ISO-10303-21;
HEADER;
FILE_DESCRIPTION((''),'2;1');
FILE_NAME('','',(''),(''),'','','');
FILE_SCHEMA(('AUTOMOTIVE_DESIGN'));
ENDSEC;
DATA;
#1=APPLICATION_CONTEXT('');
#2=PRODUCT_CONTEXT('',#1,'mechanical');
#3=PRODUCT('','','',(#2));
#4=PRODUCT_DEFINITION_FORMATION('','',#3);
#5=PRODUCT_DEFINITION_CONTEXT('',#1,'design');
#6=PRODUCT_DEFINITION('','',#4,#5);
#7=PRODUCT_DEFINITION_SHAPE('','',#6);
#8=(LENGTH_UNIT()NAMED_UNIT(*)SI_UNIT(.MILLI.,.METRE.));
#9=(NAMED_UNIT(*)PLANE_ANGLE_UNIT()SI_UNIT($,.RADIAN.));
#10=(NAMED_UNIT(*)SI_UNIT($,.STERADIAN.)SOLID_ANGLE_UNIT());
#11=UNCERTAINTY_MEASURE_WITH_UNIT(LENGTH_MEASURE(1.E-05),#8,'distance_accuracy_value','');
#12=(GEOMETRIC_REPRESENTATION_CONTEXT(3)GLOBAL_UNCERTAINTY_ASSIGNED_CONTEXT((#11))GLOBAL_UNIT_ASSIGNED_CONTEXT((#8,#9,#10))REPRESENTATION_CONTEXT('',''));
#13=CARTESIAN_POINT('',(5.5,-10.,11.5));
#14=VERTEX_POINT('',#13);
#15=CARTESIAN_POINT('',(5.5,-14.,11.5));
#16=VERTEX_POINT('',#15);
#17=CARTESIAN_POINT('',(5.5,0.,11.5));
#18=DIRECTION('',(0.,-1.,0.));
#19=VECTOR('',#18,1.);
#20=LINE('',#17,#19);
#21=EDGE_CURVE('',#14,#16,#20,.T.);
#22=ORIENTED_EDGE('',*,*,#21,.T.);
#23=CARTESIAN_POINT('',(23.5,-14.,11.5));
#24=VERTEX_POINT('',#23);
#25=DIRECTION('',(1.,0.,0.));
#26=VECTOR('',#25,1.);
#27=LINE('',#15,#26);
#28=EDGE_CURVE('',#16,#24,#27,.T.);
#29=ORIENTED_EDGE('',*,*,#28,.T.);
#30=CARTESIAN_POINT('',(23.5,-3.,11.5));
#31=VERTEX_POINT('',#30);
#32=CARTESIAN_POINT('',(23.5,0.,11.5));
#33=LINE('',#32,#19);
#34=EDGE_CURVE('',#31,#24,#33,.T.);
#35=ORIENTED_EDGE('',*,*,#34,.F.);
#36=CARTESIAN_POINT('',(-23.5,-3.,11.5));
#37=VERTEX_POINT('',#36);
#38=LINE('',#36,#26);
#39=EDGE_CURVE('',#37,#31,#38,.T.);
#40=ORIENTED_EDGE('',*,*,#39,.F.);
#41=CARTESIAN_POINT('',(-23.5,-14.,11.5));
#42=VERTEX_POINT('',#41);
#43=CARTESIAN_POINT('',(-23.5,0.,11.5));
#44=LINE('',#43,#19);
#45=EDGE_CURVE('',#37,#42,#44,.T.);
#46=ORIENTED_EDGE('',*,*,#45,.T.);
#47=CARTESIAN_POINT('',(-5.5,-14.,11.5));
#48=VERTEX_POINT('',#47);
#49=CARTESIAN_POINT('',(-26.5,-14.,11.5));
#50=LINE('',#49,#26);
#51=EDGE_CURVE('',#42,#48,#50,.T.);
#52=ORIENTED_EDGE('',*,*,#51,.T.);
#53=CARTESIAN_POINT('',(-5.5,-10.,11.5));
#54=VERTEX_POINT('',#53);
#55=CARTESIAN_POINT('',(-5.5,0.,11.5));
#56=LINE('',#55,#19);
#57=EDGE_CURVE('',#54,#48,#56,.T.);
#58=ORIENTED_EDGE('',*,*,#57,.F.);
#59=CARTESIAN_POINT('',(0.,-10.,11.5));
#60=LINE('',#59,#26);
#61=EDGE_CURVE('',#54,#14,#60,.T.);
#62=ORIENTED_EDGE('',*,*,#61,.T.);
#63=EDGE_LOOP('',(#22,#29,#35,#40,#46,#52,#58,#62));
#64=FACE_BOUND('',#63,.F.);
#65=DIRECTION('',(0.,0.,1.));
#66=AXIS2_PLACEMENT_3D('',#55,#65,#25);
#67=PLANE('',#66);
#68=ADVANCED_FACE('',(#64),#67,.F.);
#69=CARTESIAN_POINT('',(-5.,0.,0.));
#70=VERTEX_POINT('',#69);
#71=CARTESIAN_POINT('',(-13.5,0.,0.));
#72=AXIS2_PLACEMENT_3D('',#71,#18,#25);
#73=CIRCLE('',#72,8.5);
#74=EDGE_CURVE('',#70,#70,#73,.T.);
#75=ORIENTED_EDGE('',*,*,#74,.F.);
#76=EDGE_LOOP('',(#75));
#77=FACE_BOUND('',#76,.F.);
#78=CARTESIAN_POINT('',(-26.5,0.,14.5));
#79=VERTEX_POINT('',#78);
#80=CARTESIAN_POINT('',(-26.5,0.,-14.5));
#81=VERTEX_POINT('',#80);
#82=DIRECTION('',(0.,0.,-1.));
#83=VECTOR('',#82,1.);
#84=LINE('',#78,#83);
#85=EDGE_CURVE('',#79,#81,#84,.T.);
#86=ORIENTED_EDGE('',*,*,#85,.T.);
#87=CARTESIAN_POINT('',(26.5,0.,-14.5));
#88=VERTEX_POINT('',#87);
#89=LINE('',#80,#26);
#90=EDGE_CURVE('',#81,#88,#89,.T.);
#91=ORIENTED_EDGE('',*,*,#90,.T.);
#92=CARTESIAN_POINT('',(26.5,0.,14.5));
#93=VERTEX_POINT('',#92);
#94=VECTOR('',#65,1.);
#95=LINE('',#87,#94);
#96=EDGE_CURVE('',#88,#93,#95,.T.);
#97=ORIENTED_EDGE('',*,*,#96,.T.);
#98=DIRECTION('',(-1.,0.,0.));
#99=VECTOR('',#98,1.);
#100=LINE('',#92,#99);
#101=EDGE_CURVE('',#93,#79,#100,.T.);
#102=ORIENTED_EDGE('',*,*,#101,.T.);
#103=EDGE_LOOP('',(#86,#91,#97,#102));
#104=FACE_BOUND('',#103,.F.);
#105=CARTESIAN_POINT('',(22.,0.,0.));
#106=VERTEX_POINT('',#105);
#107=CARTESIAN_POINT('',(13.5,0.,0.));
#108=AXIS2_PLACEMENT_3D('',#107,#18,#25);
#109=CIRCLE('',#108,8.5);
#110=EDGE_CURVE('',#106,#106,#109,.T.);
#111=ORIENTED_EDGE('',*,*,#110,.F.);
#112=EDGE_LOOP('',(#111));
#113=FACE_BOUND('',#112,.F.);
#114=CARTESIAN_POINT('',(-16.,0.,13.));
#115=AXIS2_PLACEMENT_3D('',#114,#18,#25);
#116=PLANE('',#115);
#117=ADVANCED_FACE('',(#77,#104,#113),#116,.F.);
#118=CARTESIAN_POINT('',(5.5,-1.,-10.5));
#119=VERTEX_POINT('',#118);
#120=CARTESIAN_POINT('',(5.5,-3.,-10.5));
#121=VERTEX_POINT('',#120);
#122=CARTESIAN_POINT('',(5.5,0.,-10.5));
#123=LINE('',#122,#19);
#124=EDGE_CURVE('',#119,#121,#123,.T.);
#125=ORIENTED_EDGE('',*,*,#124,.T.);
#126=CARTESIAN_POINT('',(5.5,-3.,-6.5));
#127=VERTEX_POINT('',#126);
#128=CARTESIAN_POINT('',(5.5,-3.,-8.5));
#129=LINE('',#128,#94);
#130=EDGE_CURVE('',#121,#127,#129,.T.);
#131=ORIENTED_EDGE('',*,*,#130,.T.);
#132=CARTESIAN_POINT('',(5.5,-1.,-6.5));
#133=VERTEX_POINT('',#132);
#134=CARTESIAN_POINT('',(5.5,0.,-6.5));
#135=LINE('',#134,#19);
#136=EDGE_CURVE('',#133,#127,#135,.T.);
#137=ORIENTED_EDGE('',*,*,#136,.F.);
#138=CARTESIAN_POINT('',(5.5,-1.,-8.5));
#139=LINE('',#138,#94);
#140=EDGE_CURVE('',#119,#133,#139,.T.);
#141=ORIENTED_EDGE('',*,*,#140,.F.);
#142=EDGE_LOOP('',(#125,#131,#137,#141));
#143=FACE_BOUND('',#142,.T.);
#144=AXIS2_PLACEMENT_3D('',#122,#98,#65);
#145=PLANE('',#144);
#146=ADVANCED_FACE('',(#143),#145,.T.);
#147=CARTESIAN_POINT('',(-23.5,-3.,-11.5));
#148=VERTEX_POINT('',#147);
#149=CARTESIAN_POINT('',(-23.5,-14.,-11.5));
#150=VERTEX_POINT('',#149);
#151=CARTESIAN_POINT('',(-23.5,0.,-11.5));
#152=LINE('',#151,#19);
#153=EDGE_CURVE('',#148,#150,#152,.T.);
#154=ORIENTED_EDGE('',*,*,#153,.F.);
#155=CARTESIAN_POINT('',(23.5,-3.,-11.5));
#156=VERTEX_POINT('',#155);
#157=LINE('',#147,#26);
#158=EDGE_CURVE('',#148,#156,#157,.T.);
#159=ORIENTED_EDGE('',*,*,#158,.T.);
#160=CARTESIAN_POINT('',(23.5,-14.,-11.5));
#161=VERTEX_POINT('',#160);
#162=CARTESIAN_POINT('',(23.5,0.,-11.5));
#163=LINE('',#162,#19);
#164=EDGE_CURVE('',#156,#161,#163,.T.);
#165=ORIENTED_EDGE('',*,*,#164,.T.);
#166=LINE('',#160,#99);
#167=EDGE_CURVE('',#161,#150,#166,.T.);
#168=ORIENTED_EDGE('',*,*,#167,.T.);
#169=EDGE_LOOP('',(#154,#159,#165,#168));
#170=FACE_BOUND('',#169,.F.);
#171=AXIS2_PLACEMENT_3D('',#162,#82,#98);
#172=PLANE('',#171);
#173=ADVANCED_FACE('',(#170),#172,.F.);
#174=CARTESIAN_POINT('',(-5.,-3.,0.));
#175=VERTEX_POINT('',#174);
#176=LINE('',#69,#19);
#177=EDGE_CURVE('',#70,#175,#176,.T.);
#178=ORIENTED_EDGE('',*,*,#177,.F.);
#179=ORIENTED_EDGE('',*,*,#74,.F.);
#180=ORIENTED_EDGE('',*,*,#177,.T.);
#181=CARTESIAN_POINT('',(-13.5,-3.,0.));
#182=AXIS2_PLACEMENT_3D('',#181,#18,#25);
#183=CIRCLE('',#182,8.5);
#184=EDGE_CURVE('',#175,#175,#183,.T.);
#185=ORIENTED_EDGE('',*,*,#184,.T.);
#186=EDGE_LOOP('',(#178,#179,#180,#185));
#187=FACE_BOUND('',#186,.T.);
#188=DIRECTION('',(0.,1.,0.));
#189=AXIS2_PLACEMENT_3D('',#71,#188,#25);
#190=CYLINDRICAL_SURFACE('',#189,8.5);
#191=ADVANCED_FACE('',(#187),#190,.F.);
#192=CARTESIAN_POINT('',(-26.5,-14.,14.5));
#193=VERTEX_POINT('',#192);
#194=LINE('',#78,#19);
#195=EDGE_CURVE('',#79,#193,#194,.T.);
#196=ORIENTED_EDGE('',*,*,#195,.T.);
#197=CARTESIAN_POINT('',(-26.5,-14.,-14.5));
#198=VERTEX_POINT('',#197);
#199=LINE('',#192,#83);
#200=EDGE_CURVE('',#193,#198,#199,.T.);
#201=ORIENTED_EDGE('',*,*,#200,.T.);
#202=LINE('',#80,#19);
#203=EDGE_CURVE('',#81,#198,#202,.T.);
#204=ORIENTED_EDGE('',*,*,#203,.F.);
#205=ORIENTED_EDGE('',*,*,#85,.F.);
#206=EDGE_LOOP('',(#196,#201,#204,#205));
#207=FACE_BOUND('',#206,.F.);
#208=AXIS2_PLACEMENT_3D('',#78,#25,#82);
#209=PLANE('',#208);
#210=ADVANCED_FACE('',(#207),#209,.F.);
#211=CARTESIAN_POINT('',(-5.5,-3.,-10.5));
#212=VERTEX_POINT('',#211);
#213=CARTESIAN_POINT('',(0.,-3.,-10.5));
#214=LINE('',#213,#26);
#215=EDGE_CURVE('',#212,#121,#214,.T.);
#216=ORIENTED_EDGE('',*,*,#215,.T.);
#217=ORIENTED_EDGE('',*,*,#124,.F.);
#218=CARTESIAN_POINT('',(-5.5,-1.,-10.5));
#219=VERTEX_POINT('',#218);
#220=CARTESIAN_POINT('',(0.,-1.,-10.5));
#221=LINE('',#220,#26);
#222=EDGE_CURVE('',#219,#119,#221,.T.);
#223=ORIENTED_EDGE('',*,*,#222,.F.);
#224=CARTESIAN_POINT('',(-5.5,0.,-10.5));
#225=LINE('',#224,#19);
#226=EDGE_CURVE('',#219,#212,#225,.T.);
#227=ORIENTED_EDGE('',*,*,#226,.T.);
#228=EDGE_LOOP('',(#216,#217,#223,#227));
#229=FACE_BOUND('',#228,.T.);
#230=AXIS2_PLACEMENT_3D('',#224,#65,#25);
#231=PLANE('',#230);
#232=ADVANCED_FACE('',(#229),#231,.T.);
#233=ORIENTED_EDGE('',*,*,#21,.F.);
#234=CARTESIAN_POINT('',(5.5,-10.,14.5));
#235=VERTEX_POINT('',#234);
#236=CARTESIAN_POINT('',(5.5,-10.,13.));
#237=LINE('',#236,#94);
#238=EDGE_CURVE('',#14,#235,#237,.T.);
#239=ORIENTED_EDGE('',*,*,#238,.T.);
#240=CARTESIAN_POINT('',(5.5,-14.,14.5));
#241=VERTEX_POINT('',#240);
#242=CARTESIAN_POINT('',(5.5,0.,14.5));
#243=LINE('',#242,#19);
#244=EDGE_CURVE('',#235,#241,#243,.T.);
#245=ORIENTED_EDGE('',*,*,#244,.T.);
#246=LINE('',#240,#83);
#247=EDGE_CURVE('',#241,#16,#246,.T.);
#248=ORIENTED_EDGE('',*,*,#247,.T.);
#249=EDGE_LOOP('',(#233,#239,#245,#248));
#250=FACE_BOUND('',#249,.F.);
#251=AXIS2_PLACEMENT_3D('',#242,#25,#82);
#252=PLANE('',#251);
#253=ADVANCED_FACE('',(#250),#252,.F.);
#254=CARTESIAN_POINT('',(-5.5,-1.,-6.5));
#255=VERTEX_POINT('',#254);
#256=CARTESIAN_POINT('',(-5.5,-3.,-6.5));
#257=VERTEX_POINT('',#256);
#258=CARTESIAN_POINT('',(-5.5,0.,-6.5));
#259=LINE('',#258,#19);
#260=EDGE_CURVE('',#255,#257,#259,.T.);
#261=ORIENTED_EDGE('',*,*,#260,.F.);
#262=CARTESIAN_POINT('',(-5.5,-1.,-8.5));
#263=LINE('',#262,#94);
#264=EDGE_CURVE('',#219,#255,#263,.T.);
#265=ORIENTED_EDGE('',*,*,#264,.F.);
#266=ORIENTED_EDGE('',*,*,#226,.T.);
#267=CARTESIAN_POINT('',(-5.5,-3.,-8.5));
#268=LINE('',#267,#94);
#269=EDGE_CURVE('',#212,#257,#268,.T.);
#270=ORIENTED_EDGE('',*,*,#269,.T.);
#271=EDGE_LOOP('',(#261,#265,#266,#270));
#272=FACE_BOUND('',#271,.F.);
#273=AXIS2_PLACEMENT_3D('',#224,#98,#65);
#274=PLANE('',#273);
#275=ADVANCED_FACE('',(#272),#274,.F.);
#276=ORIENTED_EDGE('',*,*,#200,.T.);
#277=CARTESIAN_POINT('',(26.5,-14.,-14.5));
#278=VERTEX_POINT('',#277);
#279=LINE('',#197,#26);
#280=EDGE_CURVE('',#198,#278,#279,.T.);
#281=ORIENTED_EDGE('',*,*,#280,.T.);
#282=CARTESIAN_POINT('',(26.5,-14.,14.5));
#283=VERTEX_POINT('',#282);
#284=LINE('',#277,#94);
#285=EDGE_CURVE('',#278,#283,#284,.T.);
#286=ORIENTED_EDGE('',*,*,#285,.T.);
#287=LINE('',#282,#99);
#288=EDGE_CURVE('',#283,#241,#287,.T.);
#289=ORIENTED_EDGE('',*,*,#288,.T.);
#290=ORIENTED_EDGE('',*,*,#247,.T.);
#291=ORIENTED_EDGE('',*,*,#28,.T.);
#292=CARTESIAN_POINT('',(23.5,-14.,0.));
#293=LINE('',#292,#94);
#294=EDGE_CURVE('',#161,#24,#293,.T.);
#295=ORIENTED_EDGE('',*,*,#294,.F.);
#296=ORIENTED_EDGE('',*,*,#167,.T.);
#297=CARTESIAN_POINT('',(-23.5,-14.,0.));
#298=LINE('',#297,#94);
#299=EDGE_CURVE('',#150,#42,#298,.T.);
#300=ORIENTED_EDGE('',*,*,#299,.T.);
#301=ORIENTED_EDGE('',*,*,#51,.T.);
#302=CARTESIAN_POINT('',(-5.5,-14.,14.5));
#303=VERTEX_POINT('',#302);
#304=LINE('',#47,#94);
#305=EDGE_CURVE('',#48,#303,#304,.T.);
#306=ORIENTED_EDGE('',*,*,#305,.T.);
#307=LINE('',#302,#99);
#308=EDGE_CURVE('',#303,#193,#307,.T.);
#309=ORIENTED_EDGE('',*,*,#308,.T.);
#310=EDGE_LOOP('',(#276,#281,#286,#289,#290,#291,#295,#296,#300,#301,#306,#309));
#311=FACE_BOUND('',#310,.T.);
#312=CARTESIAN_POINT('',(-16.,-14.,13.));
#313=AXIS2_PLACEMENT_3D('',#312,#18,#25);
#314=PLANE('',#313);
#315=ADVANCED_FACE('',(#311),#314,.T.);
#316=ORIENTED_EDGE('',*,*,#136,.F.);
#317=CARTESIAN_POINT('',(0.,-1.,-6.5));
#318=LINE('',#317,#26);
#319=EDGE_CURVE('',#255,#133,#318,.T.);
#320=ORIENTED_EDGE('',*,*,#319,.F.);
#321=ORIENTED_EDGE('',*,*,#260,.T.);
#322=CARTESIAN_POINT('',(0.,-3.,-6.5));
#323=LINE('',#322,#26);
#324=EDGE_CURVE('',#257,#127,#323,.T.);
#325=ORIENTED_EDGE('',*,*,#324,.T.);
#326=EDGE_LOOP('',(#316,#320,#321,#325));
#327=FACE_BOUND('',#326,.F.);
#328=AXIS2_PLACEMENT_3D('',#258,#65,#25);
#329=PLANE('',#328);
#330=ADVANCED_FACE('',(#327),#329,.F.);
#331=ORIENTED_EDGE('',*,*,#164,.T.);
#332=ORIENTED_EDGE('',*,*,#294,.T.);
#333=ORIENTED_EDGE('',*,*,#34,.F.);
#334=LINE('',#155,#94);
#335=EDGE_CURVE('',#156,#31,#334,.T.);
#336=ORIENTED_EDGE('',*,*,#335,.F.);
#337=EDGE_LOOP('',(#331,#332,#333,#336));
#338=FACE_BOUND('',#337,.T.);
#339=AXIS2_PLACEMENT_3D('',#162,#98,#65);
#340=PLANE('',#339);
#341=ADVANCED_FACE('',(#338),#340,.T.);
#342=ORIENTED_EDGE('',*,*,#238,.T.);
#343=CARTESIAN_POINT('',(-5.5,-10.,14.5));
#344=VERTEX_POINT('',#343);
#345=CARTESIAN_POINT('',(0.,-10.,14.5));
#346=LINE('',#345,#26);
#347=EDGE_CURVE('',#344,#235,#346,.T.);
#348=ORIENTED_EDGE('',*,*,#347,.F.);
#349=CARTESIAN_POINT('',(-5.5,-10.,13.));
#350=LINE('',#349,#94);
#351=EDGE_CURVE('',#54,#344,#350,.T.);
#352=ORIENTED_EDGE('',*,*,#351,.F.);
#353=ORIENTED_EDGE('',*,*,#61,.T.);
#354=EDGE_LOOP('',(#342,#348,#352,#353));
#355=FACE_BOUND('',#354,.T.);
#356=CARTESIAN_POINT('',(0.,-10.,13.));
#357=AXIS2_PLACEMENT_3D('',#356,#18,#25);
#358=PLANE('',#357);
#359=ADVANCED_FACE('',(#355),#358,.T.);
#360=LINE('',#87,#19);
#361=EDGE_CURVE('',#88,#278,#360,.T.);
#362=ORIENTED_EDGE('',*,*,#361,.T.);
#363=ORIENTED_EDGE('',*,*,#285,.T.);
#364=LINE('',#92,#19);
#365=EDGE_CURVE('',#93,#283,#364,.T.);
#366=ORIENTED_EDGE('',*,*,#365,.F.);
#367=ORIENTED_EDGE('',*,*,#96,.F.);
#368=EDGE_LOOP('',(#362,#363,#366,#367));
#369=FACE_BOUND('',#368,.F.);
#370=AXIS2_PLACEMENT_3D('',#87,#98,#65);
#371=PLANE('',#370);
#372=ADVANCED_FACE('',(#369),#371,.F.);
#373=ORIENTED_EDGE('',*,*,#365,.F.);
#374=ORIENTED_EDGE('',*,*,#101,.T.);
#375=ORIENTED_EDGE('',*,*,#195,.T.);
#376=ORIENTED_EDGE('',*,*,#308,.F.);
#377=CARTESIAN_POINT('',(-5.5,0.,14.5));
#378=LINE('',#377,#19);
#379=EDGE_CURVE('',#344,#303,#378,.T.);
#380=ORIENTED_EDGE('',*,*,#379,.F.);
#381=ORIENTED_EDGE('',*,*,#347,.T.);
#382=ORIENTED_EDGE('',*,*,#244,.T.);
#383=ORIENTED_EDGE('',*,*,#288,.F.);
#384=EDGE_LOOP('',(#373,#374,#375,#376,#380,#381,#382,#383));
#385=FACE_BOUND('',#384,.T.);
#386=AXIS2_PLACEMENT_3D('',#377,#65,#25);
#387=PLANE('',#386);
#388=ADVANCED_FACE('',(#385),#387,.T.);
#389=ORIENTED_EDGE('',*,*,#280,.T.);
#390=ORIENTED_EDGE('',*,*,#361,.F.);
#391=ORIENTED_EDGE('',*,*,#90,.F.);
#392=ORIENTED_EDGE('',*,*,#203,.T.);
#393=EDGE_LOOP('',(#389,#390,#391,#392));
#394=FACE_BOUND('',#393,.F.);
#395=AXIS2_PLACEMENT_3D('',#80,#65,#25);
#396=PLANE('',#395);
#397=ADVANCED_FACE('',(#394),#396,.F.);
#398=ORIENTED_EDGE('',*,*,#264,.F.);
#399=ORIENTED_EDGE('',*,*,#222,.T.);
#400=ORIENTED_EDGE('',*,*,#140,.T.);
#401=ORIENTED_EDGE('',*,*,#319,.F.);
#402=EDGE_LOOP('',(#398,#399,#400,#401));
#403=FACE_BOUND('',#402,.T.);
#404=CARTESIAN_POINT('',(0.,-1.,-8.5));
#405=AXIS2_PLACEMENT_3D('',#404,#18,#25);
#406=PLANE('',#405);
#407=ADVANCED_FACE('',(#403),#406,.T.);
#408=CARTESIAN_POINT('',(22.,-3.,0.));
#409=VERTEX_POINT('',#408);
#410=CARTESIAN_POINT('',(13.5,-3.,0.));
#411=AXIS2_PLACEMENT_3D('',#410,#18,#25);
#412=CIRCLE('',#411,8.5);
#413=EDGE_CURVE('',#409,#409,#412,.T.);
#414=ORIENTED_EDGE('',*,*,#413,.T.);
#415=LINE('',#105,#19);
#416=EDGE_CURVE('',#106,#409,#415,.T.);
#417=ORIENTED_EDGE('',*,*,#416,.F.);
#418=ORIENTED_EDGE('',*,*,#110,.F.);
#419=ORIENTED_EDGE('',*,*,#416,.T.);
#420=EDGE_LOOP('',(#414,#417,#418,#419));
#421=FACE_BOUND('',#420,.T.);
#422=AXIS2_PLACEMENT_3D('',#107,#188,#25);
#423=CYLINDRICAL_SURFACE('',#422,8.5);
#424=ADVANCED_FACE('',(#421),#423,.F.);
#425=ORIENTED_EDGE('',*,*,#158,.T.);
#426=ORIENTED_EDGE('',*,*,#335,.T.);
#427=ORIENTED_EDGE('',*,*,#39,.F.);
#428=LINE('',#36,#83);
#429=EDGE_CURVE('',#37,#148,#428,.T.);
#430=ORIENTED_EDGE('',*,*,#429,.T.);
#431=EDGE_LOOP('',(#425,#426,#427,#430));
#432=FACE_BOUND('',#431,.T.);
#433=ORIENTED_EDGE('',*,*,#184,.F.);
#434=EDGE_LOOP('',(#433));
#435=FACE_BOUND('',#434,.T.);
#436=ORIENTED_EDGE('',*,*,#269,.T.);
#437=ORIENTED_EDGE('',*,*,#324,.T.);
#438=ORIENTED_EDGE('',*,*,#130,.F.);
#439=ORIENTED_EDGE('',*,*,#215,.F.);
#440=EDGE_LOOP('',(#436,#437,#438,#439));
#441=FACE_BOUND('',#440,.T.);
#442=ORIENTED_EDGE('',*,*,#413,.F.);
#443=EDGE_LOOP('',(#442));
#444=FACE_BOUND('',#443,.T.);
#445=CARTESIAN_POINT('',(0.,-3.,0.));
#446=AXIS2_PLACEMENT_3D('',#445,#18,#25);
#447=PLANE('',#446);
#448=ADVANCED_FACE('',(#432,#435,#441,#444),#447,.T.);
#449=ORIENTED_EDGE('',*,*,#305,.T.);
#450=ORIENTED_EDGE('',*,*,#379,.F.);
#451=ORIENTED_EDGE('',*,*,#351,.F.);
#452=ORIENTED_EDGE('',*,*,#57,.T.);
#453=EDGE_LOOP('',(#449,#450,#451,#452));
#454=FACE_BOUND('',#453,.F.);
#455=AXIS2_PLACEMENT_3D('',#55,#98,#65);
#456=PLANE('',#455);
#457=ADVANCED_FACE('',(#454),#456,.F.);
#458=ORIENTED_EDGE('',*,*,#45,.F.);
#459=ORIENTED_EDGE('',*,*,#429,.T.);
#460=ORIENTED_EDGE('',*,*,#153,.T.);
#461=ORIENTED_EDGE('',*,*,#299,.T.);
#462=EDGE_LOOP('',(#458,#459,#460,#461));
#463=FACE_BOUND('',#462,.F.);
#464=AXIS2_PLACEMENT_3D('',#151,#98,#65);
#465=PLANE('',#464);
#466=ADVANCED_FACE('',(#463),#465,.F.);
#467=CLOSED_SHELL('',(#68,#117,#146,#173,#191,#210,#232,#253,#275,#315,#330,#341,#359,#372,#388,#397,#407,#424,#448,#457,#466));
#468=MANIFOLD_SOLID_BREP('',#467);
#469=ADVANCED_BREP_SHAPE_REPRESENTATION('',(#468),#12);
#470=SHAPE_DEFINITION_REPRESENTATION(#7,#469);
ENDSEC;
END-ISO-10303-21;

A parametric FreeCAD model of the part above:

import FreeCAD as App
import Part
import Sketcher

V = App.Vector


def add_polygon(sketch, points):
    """Adds a closed chain of lines whose ends are joined by coincident constraints."""
    first, n = sketch.GeometryCount, len(points)
    for a, b in zip(points, points[1:] + points[:1]):
        sketch.addGeometry(Part.LineSegment(App.Vector(*a, 0), App.Vector(*b, 0)), False)
    for i in range(n):
        sketch.addConstraint(Sketcher.Constraint("Coincident", first + i, 2, first + (i + 1) % n, 1))

doc = App.newDocument("Part")
body = doc.addObject("PartDesign::Body", "Body")

sketch1 = body.newObject("Sketcher::SketchObject", "Sketch")
sketch1.AttachmentSupport = (doc.getObject("XZ_Plane"), [""])
sketch1.MapMode = "FlatFace"
add_polygon(sketch1, [(-23.5, 11.5), (-23.5, -11.5), (23.5, -11.5), (23.5, 11.5)])
add_polygon(sketch1, [(5.5, -10.5), (-5.5, -10.5), (-5.5, -6.5), (5.5, -6.5)])
sketch1.addGeometry(Part.Circle(V(-13.5, 0, 0), V(0, 0, 1), 8.5), False)
sketch1.addGeometry(Part.Circle(V(13.5, 0, 0), V(0, 0, 1), 8.5), False)
sketch1.addConstraint([
    Sketcher.Constraint("Vertical", 0),
    Sketcher.Constraint("Horizontal", 1),
    Sketcher.Constraint("Vertical", 2),
    Sketcher.Constraint("Horizontal", 3),
    Sketcher.Constraint("Horizontal", 4),
    Sketcher.Constraint("Vertical", 5),
    Sketcher.Constraint("Horizontal", 6),
    Sketcher.Constraint("Vertical", 7),
    Sketcher.Constraint("Equal", 8, 9),
    Sketcher.Constraint("Symmetric", 8, 3, 9, 3, -1, 1),
    Sketcher.Constraint("Symmetric", 0, 2, 2, 2, -1, 1),
    Sketcher.Constraint("PointOnObject", 8, 3, -1),
    Sketcher.Constraint("Diameter", 8, 17.0),
    Sketcher.Constraint("DistanceX", 1, 1, 1, 2, 47.0),
    Sketcher.Constraint("DistanceX", 4, 2, 4, 1, 11.0),
    Sketcher.Constraint("DistanceY", 0, 2, 0, 1, 23.0),
    Sketcher.Constraint("DistanceY", 5, 1, 5, 2, 4.0),
    Sketcher.Constraint("DistanceX", 8, 3, 9, 3, 27.0),
    Sketcher.Constraint("DistanceX", 8, 3, 4, 2, 8.0),
    Sketcher.Constraint("DistanceY", 0, 2, 4, 2, 1.0),
])
pad1 = body.newObject("PartDesign::Pad", "Pad")
pad1.Profile = sketch1
pad1.Length = 3

sketch2 = body.newObject("Sketcher::SketchObject", "Sketch001")
sketch2.AttachmentSupport = (doc.getObject("XZ_Plane"), [""])
sketch2.MapMode = "FlatFace"
add_polygon(sketch2, [(-5.5, -6.5), (-5.5, -10.5), (5.5, -10.5), (5.5, -6.5)])
sketch2.addConstraint([
    Sketcher.Constraint("Vertical", 0),
    Sketcher.Constraint("Horizontal", 1),
    Sketcher.Constraint("Vertical", 2),
    Sketcher.Constraint("Horizontal", 3),
    Sketcher.Constraint("DistanceX", 1, 1, 1, 2, 11.0),
    Sketcher.Constraint("DistanceY", 0, 2, 0, 1, 4.0),
    Sketcher.Constraint("DistanceX", 0, 2, -1, 1, 5.5),
    Sketcher.Constraint("DistanceY", 0, 2, -1, 1, 10.5),
])
pad2 = body.newObject("PartDesign::Pad", "Pad001")
pad2.Profile = sketch2
pad2.Length = 1

sketch3 = body.newObject("Sketcher::SketchObject", "Sketch002")
sketch3.AttachmentSupport = (doc.getObject("XZ_Plane"), [""])
sketch3.MapMode = "FlatFace"
add_polygon(sketch3, [(-23.5, 11.5), (-5.5, 11.5), (-5.5, 14.5), (-26.5, 14.5), (-26.5, -14.5), (26.5, -14.5), (26.5, 14.5), (5.5, 14.5), (5.5, 11.5), (23.5, 11.5), (23.5, -11.5), (-23.5, -11.5)])
sketch3.addConstraint([
    Sketcher.Constraint("Horizontal", 0),
    Sketcher.Constraint("Vertical", 1),
    Sketcher.Constraint("Horizontal", 2),
    Sketcher.Constraint("Vertical", 3),
    Sketcher.Constraint("Horizontal", 4),
    Sketcher.Constraint("Vertical", 5),
    Sketcher.Constraint("Horizontal", 6),
    Sketcher.Constraint("Vertical", 7),
    Sketcher.Constraint("Horizontal", 8),
    Sketcher.Constraint("Vertical", 9),
    Sketcher.Constraint("Horizontal", 10),
    Sketcher.Constraint("Vertical", 11),
    Sketcher.Constraint("Symmetric", 2, 2, 4, 2, -1, 1),
    Sketcher.Constraint("Symmetric", 8, 2, 10, 2, -1, 1),
    Sketcher.Constraint("Symmetric", 1, 2, 6, 2, -2),
    Sketcher.Constraint("Horizontal", 0, 2, 7, 2),
    Sketcher.Constraint("DistanceX", 0, 1, 0, 2, 18.0),
    Sketcher.Constraint("DistanceX", 2, 2, 2, 1, 21.0),
    Sketcher.Constraint("DistanceX", 4, 1, 4, 2, 53.0),
    Sketcher.Constraint("DistanceY", 1, 1, 1, 2, 3.0),
    Sketcher.Constraint("DistanceY", 3, 2, 3, 1, 29.0),
])
pad3 = body.newObject("PartDesign::Pad", "Pad002")
pad3.Profile = sketch3
pad3.Length = 14

sketch4 = body.newObject("Sketcher::SketchObject", "Sketch003")
sketch4.AttachmentSupport = (doc.getObject("XZ_Plane"), [""])
sketch4.MapMode = "FlatFace"
add_polygon(sketch4, [(-5.5, 14.5), (-5.5, 11.5), (5.5, 11.5), (5.5, 14.5)])
sketch4.addConstraint([
    Sketcher.Constraint("Vertical", 0),
    Sketcher.Constraint("Horizontal", 1),
    Sketcher.Constraint("Vertical", 2),
    Sketcher.Constraint("Horizontal", 3),
    Sketcher.Constraint("DistanceX", 1, 1, 1, 2, 11.0),
    Sketcher.Constraint("DistanceY", 0, 2, 0, 1, 3.0),
    Sketcher.Constraint("DistanceX", 0, 2, -1, 1, 5.5),
    Sketcher.Constraint("DistanceY", -1, 1, 0, 2, 11.5),
])
pad4 = body.newObject("PartDesign::Pad", "Pad003")
pad4.Profile = sketch4
pad4.Length = 10

doc.recompute()
